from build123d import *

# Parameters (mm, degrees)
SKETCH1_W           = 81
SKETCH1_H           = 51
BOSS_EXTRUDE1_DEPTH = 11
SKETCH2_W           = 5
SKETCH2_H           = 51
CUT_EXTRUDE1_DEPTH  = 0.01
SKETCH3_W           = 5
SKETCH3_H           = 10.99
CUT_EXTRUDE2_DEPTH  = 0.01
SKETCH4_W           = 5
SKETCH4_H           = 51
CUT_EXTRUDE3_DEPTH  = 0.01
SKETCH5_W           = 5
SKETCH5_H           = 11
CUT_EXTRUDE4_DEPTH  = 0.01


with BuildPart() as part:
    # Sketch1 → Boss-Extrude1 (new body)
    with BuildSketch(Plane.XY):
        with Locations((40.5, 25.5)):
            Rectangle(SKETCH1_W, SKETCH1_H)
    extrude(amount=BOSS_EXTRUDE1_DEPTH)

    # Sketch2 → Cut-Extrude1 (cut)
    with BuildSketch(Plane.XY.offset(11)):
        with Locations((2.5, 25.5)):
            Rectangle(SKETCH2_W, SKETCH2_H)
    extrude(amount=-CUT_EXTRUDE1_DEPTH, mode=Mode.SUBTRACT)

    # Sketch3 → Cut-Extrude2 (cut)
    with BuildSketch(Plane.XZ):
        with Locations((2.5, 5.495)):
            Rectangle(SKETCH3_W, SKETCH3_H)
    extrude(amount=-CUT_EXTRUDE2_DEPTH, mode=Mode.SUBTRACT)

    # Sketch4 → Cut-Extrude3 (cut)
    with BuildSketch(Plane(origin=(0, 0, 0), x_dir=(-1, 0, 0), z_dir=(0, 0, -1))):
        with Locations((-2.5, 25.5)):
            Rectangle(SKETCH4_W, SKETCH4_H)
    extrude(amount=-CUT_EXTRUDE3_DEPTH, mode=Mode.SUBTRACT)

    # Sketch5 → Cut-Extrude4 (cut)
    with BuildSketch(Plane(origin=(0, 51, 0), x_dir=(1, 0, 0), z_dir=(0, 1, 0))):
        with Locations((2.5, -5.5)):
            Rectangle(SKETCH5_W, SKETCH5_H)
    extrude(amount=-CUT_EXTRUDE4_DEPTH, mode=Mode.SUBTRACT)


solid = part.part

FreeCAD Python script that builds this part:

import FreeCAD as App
import Part
import Sketcher

V = App.Vector
Q = App.Units.Quantity

doc = App.newDocument("Part")
body = doc.addObject("PartDesign::Body", "Body")

sketch1 = body.newObject("Sketcher::SketchObject", "Sketch")
sketch1.AttachmentSupport = (doc.getObject("XY_Plane"), [""])
sketch1.MapMode = "FlatFace"
sketch1.addGeometry([
    Part.LineSegment(V(0, 51, 0), V(0, 0, 0)),
    Part.LineSegment(V(0, 0, 0), V(81, 0, 0)),
    Part.LineSegment(V(81, 0, 0), V(81, 51, 0)),
    Part.LineSegment(V(81, 51, 0), V(0, 51, 0)),
], False)
sketch1.addConstraint([
    Sketcher.Constraint("Coincident", 0, 2, 1, 1),
    Sketcher.Constraint("Coincident", 1, 2, 2, 1),
    Sketcher.Constraint("Coincident", 2, 2, 3, 1),
    Sketcher.Constraint("Coincident", 3, 2, 0, 1),
    Sketcher.Constraint("Vertical", 0),
    Sketcher.Constraint("Horizontal", 1),
    Sketcher.Constraint("Vertical", 2),
    Sketcher.Constraint("Horizontal", 3),
    Sketcher.Constraint("Coincident", 0, 2, -1, 1),
    Sketcher.Constraint("DistanceX", 1, 1, 1, 2, Q("81 mm")),
    Sketcher.Constraint("DistanceY", 0, 2, 0, 1, Q("51 mm")),
])
pad1 = body.newObject("PartDesign::Pad", "Pad")
pad1.Profile = sketch1
pad1.Length = 11

sketch2 = body.newObject("Sketcher::SketchObject", "Sketch001")
sketch2.AttachmentSupport = (doc.getObject("XY_Plane"), [""])
sketch2.MapMode = "FlatFace"
sketch2.AttachmentOffset = App.Placement(V(0, 0, 11), App.Rotation())
sketch2.addGeometry([
    Part.LineSegment(V(0, 51, 0), V(0, 0, 0)),
    Part.LineSegment(V(0, 0, 0), V(5, 0, 0)),
    Part.LineSegment(V(5, 0, 0), V(5, 51, 0)),
    Part.LineSegment(V(5, 51, 0), V(0, 51, 0)),
], False)
sketch2.addConstraint([
    Sketcher.Constraint("Coincident", 0, 2, 1, 1),
    Sketcher.Constraint("Coincident", 1, 2, 2, 1),
    Sketcher.Constraint("Coincident", 2, 2, 3, 1),
    Sketcher.Constraint("Coincident", 3, 2, 0, 1),
    Sketcher.Constraint("Vertical", 0),
    Sketcher.Constraint("Horizontal", 1),
    Sketcher.Constraint("Vertical", 2),
    Sketcher.Constraint("Horizontal", 3),
    Sketcher.Constraint("Coincident", 0, 2, -1, 1),
    Sketcher.Constraint("DistanceX", 1, 1, 1, 2, Q("5 mm")),
    Sketcher.Constraint("DistanceY", 0, 2, 0, 1, Q("51 mm")),
])
pocket1 = body.newObject("PartDesign::Pocket", "Pocket")
pocket1.Profile = sketch2
pocket1.Length = 0.01

sketch3 = body.newObject("Sketcher::SketchObject", "Sketch002")
sketch3.AttachmentSupport = (doc.getObject("XZ_Plane"), [""])
sketch3.MapMode = "FlatFace"
sketch3.addGeometry([
    Part.LineSegment(V(0, 11, 0), V(0, 0, 0)),
    Part.LineSegment(V(0, 0, 0), V(5, 0, 0)),
    Part.LineSegment(V(5, 0, 0), V(5, 11, 0)),
    Part.LineSegment(V(5, 11, 0), V(0, 11, 0)),
], False)
sketch3.addConstraint([
    Sketcher.Constraint("Coincident", 0, 2, 1, 1),
    Sketcher.Constraint("Coincident", 1, 2, 2, 1),
    Sketcher.Constraint("Coincident", 2, 2, 3, 1),
    Sketcher.Constraint("Coincident", 3, 2, 0, 1),
    Sketcher.Constraint("Vertical", 0),
    Sketcher.Constraint("Horizontal", 1),
    Sketcher.Constraint("Vertical", 2),
    Sketcher.Constraint("Horizontal", 3),
    Sketcher.Constraint("Coincident", 0, 2, -1, 1),
    Sketcher.Constraint("DistanceX", 1, 1, 1, 2, Q("5 mm")),
    Sketcher.Constraint("DistanceY", 0, 2, 0, 1, Q("10.99 mm")),
])
pocket2 = body.newObject("PartDesign::Pocket", "Pocket001")
pocket2.Profile = sketch3
pocket2.Length = 0.01

sketch4 = body.newObject("Sketcher::SketchObject", "Sketch003")
sketch4.AttachmentSupport = (doc.getObject("XY_Plane"), [""])
sketch4.MapMode = "FlatFace"
sketch4.addGeometry([
    Part.LineSegment(V(5, 51, 0), V(5, 0, 0)),
    Part.LineSegment(V(5, 0, 0), V(0, 0, 0)),
    Part.LineSegment(V(0, 0, 0), V(0, 51, 0)),
    Part.LineSegment(V(0, 51, 0), V(5, 51, 0)),
], False)
sketch4.addConstraint([
    Sketcher.Constraint("Coincident", 0, 2, 1, 1),
    Sketcher.Constraint("Coincident", 1, 2, 2, 1),
    Sketcher.Constraint("Coincident", 2, 2, 3, 1),
    Sketcher.Constraint("Coincident", 3, 2, 0, 1),
    Sketcher.Constraint("Vertical", 0),
    Sketcher.Constraint("Horizontal", 1),
    Sketcher.Constraint("Vertical", 2),
    Sketcher.Constraint("Horizontal", 3),
    Sketcher.Constraint("Coincident", 1, 2, -1, 1),
    Sketcher.Constraint("DistanceX", 1, 2, 1, 1, Q("5 mm")),
    Sketcher.Constraint("DistanceY", 0, 2, 0, 1, Q("51 mm")),
])
pocket3 = body.newObject("PartDesign::Pocket", "Pocket002")
pocket3.Profile = sketch4
pocket3.Length = 0.01
pocket3.Reversed = True

sketch5 = body.newObject("Sketcher::SketchObject", "Sketch004")
sketch5.AttachmentSupport = (doc.getObject("XZ_Plane"), [""])
sketch5.MapMode = "FlatFace"
sketch5.AttachmentOffset = App.Placement(V(0, 0, -51), App.Rotation())
sketch5.addGeometry([
    Part.LineSegment(V(0, 0, 0), V(0, 11, 0)),
    Part.LineSegment(V(0, 11, 0), V(5, 11, 0)),
    Part.LineSegment(V(5, 11, 0), V(5, 0, 0)),
    Part.LineSegment(V(5, 0, 0), V(0, 0, 0)),
], False)
sketch5.addConstraint([
    Sketcher.Constraint("Coincident", 0, 2, 1, 1),
    Sketcher.Constraint("Coincident", 1, 2, 2, 1),
    Sketcher.Constraint("Coincident", 2, 2, 3, 1),
    Sketcher.Constraint("Coincident", 3, 2, 0, 1),
    Sketcher.Constraint("Vertical", 0),
    Sketcher.Constraint("Horizontal", 1),
    Sketcher.Constraint("Vertical", 2),
    Sketcher.Constraint("Horizontal", 3),
    Sketcher.Constraint("Coincident", 3, 2, -1, 1),
    Sketcher.Constraint("DistanceX", 1, 1, 1, 2, Q("5 mm")),
    Sketcher.Constraint("DistanceY", 0, 1, 0, 2, Q("11 mm")),
])
pocket4 = body.newObject("PartDesign::Pocket", "Pocket003")
pocket4.Profile = sketch5
pocket4.Length = 0.01
pocket4.Reversed = True

doc.recompute()
